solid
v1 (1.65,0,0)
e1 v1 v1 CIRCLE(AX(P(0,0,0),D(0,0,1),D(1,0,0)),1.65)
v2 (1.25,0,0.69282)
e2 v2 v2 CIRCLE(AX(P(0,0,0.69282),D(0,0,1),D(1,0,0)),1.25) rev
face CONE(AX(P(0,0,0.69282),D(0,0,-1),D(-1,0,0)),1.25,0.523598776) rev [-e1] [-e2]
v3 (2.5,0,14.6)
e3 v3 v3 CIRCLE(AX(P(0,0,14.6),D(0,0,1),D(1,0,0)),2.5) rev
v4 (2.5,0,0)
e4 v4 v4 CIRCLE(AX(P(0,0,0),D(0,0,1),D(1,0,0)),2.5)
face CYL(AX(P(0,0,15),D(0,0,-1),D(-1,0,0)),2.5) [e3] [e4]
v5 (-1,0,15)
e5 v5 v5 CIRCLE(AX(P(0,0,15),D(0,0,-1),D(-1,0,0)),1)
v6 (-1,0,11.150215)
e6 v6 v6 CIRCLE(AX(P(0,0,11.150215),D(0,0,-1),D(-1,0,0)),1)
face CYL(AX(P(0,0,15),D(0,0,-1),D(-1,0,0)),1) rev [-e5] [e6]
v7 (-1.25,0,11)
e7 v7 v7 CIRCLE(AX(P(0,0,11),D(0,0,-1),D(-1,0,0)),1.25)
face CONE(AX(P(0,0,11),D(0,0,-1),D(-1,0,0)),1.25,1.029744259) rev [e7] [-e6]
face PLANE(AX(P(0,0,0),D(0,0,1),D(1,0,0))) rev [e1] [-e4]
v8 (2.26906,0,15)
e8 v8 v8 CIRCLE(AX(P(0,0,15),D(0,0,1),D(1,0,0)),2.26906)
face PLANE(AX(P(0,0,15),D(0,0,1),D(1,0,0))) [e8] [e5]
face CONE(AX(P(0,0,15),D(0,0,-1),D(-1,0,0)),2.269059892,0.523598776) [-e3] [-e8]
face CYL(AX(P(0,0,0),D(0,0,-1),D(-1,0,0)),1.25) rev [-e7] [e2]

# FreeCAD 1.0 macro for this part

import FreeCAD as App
import Part
import Sketcher
from FreeCAD import Vector


def edges_at(feature, points):
    """Names of the edges that pass closest to the given points."""
    edges = feature.Shape.Edges
    near = lambda p: min(range(len(edges)), key=lambda i: edges[i].distToShape(Part.Vertex(*p))[0])
    return sorted({f"Edge{near(p) + 1}" for p in points})

doc = App.newDocument("Part")
body = doc.addObject("PartDesign::Body", "Body")

# Sketch on XY plane
sketch1 = body.newObject("Sketcher::SketchObject", "Sketch")
sketch1.AttachmentSupport = (doc.getObject("XY_Plane"), [""])
sketch1.MapMode = "FlatFace"
sketch1.addGeometry(Part.Circle(Vector(0, 0, 0), Vector(0, 0, 1), 2.5), False)
sketch1.addConstraint([
    Sketcher.Constraint("Coincident", 0, 3, -1, 1),
    Sketcher.Constraint("Diameter", 0, 5.0),
])
pad1 = body.newObject("PartDesign::Pad", "Pad")
pad1.Profile = sketch1
pad1.Length = 15

# Sketch on XY plane
sketch2 = body.newObject("Sketcher::SketchObject", "Sketch001")
sketch2.AttachmentSupport = (doc.getObject("XY_Plane"), [""])
sketch2.MapMode = "FlatFace"
sketch2.addGeometry(Part.Circle(Vector(0, 0, 0), Vector(0, 0, 1), 1), False)
sketch2.addConstraint([
    Sketcher.Constraint("Coincident", 0, 3, -1, 1),
    Sketcher.Constraint("Diameter", 0, 2.0),
])
pocket1 = body.newObject("PartDesign::Pocket", "Pocket")
pocket1.Profile = sketch2
pocket1.Type = "ThroughAll"
pocket1.Reversed = True

# Sketch on XY plane
sketch3 = body.newObject("Sketcher::SketchObject", "Sketch002")
sketch3.AttachmentSupport = (doc.getObject("XY_Plane"), [""])
sketch3.MapMode = "FlatFace"
sketch3.addGeometry(Part.Circle(Vector(0, 0, 0), Vector(0, 0, 1), 1.2), False)
sketch3.addConstraint([
    Sketcher.Constraint("Coincident", 0, 3, -1, 1),
    Sketcher.Constraint("Diameter", 0, 2.5),
])
doc.recompute()
hole = body.newObject("PartDesign::Hole", "Hole")
hole.Profile = sketch3
hole.ThreadType = "None"
hole.Diameter = 2.5
hole.DepthType = "Dimension"
hole.Depth = 11
hole.DrillPoint = "Angled"
hole.DrillPointAngle = 118
hole.Reversed = True
doc.recompute()

chamfer = body.newObject("PartDesign::Chamfer", "Chamfer")
chamfer.Base = (hole, edges_at(hole, [(-2.5, 0, 15)]))
chamfer.ChamferType = "Two distances"
chamfer.Size = 0.4
chamfer.Size2 = 0.23094
doc.recompute()

chamfer2 = body.newObject("PartDesign::Chamfer", "Chamfer001")
chamfer2.Base = (chamfer, edges_at(chamfer, [(-1.25, 0, 0)]))
chamfer2.ChamferType = "Two distances"
chamfer2.Size = 0.4
chamfer2.Size2 = 0.69282

doc.recompute()
